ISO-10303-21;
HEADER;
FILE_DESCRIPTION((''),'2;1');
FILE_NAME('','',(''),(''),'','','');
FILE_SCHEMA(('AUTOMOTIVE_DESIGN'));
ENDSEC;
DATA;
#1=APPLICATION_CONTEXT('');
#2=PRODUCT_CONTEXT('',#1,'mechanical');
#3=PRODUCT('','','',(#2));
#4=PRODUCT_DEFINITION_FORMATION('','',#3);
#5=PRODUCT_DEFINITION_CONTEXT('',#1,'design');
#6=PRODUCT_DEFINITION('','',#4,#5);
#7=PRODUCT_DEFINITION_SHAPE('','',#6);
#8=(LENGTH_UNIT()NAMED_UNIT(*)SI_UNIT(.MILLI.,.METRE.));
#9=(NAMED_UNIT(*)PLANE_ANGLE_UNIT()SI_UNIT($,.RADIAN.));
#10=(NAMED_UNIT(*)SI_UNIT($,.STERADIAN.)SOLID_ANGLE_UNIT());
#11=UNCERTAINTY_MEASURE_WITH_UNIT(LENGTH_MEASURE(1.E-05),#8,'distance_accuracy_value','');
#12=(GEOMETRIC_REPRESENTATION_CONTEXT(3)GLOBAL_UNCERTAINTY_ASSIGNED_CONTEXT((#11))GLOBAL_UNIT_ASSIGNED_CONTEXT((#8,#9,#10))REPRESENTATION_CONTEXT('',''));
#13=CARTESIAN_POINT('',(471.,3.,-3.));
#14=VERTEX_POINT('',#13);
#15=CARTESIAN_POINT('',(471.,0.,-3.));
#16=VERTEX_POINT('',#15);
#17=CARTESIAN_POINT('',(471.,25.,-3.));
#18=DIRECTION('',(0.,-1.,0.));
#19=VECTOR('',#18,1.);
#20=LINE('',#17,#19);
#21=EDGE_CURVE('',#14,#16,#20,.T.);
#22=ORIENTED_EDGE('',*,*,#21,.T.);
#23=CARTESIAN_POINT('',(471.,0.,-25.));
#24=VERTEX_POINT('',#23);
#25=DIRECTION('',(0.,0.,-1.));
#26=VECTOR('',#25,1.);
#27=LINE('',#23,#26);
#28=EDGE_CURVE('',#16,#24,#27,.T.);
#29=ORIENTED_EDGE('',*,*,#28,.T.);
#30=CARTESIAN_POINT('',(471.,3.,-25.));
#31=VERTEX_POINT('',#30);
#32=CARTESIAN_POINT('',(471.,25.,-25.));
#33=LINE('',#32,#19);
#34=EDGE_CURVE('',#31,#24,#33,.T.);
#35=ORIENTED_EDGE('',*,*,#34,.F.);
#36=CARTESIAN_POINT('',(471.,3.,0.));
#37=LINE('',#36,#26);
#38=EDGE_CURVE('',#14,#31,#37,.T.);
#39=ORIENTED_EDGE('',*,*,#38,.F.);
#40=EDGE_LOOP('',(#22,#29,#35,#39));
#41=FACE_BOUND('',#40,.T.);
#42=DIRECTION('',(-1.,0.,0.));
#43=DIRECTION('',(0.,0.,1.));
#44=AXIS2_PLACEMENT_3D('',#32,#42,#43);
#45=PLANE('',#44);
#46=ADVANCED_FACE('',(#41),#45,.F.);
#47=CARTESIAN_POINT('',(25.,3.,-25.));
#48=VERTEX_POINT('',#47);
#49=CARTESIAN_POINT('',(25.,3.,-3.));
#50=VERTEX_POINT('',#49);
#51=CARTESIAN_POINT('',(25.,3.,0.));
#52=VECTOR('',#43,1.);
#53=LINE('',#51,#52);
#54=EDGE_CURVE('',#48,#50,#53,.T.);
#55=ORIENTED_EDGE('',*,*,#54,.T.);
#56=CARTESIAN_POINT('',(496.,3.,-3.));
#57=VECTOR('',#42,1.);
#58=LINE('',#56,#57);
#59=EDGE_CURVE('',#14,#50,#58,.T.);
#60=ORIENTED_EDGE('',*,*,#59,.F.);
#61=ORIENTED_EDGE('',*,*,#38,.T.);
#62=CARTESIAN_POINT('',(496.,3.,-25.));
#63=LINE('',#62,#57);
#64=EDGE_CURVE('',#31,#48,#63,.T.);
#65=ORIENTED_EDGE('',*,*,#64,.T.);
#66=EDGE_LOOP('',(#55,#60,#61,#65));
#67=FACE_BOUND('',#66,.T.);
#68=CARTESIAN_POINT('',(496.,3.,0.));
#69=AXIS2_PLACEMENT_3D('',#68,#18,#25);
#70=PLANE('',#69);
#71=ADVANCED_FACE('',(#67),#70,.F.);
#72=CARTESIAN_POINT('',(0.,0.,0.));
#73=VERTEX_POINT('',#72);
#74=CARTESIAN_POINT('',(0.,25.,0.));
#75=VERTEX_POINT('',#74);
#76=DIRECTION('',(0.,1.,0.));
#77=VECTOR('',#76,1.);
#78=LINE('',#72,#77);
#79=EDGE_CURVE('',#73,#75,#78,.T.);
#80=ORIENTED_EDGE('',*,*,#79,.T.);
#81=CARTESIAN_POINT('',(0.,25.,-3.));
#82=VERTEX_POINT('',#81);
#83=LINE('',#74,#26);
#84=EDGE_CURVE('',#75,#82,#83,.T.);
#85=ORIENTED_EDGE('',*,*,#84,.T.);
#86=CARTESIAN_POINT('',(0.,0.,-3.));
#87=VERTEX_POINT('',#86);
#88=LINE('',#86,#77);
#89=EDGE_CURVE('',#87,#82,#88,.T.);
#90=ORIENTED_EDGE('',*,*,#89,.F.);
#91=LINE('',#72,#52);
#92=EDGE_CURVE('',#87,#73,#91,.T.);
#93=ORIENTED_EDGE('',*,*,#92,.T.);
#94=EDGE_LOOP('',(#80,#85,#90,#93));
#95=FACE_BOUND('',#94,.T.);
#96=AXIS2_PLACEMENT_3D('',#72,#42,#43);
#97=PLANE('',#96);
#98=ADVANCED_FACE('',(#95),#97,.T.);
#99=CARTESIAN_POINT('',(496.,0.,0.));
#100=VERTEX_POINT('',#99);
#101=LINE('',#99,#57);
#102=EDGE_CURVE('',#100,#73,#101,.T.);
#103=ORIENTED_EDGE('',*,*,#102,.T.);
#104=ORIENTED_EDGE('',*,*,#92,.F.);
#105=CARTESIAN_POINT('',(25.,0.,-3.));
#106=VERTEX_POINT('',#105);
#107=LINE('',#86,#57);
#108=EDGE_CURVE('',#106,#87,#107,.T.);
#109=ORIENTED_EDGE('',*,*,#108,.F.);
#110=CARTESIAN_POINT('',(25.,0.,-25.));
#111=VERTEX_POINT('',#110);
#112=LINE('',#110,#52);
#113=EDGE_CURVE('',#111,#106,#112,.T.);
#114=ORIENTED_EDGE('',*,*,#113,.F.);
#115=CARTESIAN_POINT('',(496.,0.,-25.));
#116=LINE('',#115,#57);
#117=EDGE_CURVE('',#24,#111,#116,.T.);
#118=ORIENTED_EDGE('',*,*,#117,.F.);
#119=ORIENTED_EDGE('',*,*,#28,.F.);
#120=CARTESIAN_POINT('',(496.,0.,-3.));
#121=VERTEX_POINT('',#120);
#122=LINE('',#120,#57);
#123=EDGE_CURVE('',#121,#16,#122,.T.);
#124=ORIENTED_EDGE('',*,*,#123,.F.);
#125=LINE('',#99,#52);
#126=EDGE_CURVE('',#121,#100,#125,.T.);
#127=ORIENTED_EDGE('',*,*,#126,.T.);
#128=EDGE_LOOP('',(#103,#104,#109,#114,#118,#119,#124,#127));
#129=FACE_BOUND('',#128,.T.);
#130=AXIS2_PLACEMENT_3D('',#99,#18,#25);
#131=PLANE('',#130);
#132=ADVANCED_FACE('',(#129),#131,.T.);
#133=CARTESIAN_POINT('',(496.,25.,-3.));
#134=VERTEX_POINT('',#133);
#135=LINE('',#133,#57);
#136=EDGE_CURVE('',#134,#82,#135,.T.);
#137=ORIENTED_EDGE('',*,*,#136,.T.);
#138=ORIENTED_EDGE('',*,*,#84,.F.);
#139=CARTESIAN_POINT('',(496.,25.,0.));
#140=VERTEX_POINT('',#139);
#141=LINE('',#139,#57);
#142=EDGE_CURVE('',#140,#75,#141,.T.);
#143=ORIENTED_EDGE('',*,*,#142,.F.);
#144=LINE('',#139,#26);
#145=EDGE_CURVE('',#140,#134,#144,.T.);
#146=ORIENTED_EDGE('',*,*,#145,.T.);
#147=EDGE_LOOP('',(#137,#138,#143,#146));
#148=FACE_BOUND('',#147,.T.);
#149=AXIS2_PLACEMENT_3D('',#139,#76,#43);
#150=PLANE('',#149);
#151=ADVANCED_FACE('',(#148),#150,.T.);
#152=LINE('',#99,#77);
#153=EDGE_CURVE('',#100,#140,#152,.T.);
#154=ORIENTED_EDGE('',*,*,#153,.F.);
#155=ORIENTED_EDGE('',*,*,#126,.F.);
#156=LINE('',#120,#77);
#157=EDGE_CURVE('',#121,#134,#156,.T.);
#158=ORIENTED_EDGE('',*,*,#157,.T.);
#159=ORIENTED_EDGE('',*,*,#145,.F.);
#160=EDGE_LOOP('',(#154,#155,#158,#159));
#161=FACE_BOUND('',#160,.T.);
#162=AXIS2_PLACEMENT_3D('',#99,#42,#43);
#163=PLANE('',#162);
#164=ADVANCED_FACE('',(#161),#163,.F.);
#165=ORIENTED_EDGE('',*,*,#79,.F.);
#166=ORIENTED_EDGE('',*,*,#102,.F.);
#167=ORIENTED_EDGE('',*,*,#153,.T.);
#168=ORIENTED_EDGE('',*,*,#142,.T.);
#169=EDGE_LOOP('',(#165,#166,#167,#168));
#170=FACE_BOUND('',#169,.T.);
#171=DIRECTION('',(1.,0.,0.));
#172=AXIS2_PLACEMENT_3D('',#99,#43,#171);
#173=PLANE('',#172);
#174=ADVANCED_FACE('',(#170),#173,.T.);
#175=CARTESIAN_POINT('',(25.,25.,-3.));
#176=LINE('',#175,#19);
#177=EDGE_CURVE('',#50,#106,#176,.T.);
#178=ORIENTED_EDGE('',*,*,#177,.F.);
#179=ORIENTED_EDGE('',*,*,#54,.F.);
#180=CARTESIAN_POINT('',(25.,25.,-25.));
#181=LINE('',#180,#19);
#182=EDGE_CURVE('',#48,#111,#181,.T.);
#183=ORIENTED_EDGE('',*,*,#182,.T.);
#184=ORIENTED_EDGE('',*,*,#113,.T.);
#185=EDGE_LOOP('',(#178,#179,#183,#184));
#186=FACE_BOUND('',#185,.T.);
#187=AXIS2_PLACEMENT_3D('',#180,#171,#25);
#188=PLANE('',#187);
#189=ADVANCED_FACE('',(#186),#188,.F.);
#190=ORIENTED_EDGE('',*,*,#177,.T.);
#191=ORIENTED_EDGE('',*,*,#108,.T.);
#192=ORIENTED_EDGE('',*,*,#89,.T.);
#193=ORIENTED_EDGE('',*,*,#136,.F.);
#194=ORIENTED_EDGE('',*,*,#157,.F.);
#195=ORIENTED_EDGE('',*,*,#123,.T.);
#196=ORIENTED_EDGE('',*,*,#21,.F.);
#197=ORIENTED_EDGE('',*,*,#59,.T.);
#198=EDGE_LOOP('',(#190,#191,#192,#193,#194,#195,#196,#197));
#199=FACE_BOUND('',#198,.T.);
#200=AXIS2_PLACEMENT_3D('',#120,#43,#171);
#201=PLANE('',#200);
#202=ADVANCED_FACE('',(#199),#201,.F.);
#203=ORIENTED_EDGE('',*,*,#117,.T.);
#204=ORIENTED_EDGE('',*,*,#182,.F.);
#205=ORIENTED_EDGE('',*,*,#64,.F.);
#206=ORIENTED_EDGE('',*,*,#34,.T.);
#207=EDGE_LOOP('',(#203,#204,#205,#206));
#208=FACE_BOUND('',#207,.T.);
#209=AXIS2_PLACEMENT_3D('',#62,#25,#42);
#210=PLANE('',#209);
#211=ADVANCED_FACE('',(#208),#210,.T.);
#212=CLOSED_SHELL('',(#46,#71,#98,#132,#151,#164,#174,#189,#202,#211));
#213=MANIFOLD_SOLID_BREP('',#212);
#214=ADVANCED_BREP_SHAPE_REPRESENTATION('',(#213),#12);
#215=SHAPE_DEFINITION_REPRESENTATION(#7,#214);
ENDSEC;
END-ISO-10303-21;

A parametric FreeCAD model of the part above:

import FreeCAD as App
import Part
import Sketcher

V = App.Vector

doc = App.newDocument("Part")
body = doc.addObject("PartDesign::Body", "Body")

sketch1 = body.newObject("Sketcher::SketchObject", "Sketch")
sketch1.AttachmentSupport = (doc.getObject("YZ_Plane"), [""])
sketch1.MapMode = "FlatFace"
sketch1.addGeometry(Part.LineSegment(V(25, 0, 0), V(0, 0, 0)), False)
sketch1.addGeometry(Part.LineSegment(V(0, 0, 0), V(0, -25, 0)), False)
sketch1.addGeometry(Part.LineSegment(V(0, -25, 0), V(3, -25, 0)), False)
sketch1.addGeometry(Part.LineSegment(V(3, -25, 0), V(3, -3, 0)), False)
sketch1.addGeometry(Part.LineSegment(V(3, -3, 0), V(25, -3, 0)), False)
sketch1.addGeometry(Part.LineSegment(V(25, -3, 0), V(25, 0, 0)), False)
sketch1.addConstraint(Sketcher.Constraint("Coincident", 0, 2, 1, 1))
sketch1.addConstraint(Sketcher.Constraint("Coincident", 1, 2, 2, 1))
sketch1.addConstraint(Sketcher.Constraint("Coincident", 2, 2, 3, 1))
sketch1.addConstraint(Sketcher.Constraint("Coincident", 3, 2, 4, 1))
sketch1.addConstraint(Sketcher.Constraint("Coincident", 4, 2, 5, 1))
sketch1.addConstraint(Sketcher.Constraint("Coincident", 5, 2, 0, 1))
sketch1.addConstraint(Sketcher.Constraint("Horizontal", 0))
sketch1.addConstraint(Sketcher.Constraint("Vertical", 1))
sketch1.addConstraint(Sketcher.Constraint("Horizontal", 2))
sketch1.addConstraint(Sketcher.Constraint("Vertical", 3))
sketch1.addConstraint(Sketcher.Constraint("Horizontal", 4))
sketch1.addConstraint(Sketcher.Constraint("Vertical", 5))
sketch1.addConstraint(Sketcher.Constraint("Coincident", 0, 2, -1, 1))
sketch1.addConstraint(Sketcher.Constraint("Equal", 0, 1))
sketch1.addConstraint(Sketcher.Constraint("Equal", 4, 3))
sketch1.addConstraint(Sketcher.Constraint("DistanceX", 0, 2, 0, 1, 25.0))
sketch1.addConstraint(Sketcher.Constraint("DistanceX", 2, 1, 2, 2, 3.0))
pad1 = body.newObject("PartDesign::Pad", "Pad")
pad1.Profile = sketch1
pad1.Length = 496

sketch2 = body.newObject("Sketcher::SketchObject", "Sketch001")
sketch2.AttachmentSupport = (doc.getObject("XZ_Plane"), [""])
sketch2.MapMode = "FlatFace"
sketch2.addGeometry(Part.LineSegment(V(471, -3, 0), V(471, -25, 0)), False)
sketch2.addGeometry(Part.LineSegment(V(471, -25, 0), V(496, -25, 0)), False)
sketch2.addGeometry(Part.LineSegment(V(496, -25, 0), V(496, -3, 0)), False)
sketch2.addGeometry(Part.LineSegment(V(496, -3, 0), V(471, -3, 0)), False)
sketch2.addGeometry(Part.LineSegment(V(0, -3, 0), V(0, -25, 0)), False)
sketch2.addGeometry(Part.LineSegment(V(0, -25, 0), V(25, -25, 0)), False)
sketch2.addGeometry(Part.LineSegment(V(25, -25, 0), V(25, -3, 0)), False)
sketch2.addGeometry(Part.LineSegment(V(25, -3, 0), V(0, -3, 0)), False)
sketch2.addConstraint(Sketcher.Constraint("Coincident", 0, 2, 1, 1))
sketch2.addConstraint(Sketcher.Constraint("Coincident", 1, 2, 2, 1))
sketch2.addConstraint(Sketcher.Constraint("Coincident", 2, 2, 3, 1))
sketch2.addConstraint(Sketcher.Constraint("Coincident", 3, 2, 0, 1))
sketch2.addConstraint(Sketcher.Constraint("Coincident", 4, 2, 5, 1))
sketch2.addConstraint(Sketcher.Constraint("Coincident", 5, 2, 6, 1))
sketch2.addConstraint(Sketcher.Constraint("Coincident", 6, 2, 7, 1))
sketch2.addConstraint(Sketcher.Constraint("Coincident", 7, 2, 4, 1))
sketch2.addConstraint(Sketcher.Constraint("Vertical", 0))
sketch2.addConstraint(Sketcher.Constraint("Horizontal", 1))
sketch2.addConstraint(Sketcher.Constraint("Vertical", 2))
sketch2.addConstraint(Sketcher.Constraint("Horizontal", 3))
sketch2.addConstraint(Sketcher.Constraint("Vertical", 4))
sketch2.addConstraint(Sketcher.Constraint("Horizontal", 5))
sketch2.addConstraint(Sketcher.Constraint("Vertical", 6))
sketch2.addConstraint(Sketcher.Constraint("Horizontal", 7))
sketch2.addConstraint(Sketcher.Constraint("PointOnObject", 4, 2, -2))
sketch2.addConstraint(Sketcher.Constraint("Horizontal", 1, 2, 4, 2))
sketch2.addConstraint(Sketcher.Constraint("Horizontal", 3, 2, 6, 2))
sketch2.addConstraint(Sketcher.Constraint("Equal", 3, 5))
sketch2.addConstraint(Sketcher.Constraint("DistanceX", 1, 1, 1, 2, 25.0))
sketch2.addConstraint(Sketcher.Constraint("DistanceY", 0, 2, 0, 1, 22.0))
sketch2.addConstraint(Sketcher.Constraint("DistanceX", -1, 1, 0, 2, 471.0))
sketch2.addConstraint(Sketcher.Constraint("DistanceY", 0, 2, -1, 1, 25.0))
pocket1 = body.newObject("PartDesign::Pocket", "Pocket")
pocket1.Profile = sketch2
pocket1.Type = "ThroughAll"

doc.recompute()
